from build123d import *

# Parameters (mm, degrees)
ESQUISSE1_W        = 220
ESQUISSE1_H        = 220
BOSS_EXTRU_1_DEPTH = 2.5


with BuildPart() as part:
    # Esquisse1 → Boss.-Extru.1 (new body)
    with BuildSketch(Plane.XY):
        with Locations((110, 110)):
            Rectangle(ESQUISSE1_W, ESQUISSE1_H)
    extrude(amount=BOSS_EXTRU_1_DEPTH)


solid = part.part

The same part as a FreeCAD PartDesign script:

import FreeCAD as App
import Part
import Sketcher
Q = App.Units.Quantity

doc = App.newDocument("Part")
body = doc.addObject("PartDesign::Body", "Body")

# Sketch on XY plane
sketch1 = body.newObject("Sketcher::SketchObject", "Sketch")
sketch1.AttachmentSupport = (doc.getObject("XY_Plane"), [""])
sketch1.MapMode = "FlatFace"
sketch1.addGeometry(Part.LineSegment(App.Vector(0, 220, 0), App.Vector(0, 0, 0)), False)
sketch1.addGeometry(Part.LineSegment(App.Vector(0, 0, 0), App.Vector(220, 0, 0)), False)
sketch1.addGeometry(Part.LineSegment(App.Vector(220, 0, 0), App.Vector(220, 220, 0)), False)
sketch1.addGeometry(Part.LineSegment(App.Vector(220, 220, 0), App.Vector(0, 220, 0)), False)
sketch1.addConstraint(Sketcher.Constraint("Coincident", 0, 2, 1, 1))
sketch1.addConstraint(Sketcher.Constraint("Coincident", 1, 2, 2, 1))
sketch1.addConstraint(Sketcher.Constraint("Coincident", 2, 2, 3, 1))
sketch1.addConstraint(Sketcher.Constraint("Coincident", 3, 2, 0, 1))
sketch1.addConstraint(Sketcher.Constraint("Vertical", 0))
sketch1.addConstraint(Sketcher.Constraint("Horizontal", 1))
sketch1.addConstraint(Sketcher.Constraint("Vertical", 2))
sketch1.addConstraint(Sketcher.Constraint("Horizontal", 3))
sketch1.addConstraint(Sketcher.Constraint("Coincident", 0, 2, -1, 1))
sketch1.addConstraint(Sketcher.Constraint("Equal", 3, 0))
sketch1.addConstraint(Sketcher.Constraint("DistanceX", 1, 1, 1, 2, Q("220 mm")))
pad1 = body.newObject("PartDesign::Pad", "Pad")
pad1.Profile = sketch1
pad1.Length = 2.5

doc.recompute()
